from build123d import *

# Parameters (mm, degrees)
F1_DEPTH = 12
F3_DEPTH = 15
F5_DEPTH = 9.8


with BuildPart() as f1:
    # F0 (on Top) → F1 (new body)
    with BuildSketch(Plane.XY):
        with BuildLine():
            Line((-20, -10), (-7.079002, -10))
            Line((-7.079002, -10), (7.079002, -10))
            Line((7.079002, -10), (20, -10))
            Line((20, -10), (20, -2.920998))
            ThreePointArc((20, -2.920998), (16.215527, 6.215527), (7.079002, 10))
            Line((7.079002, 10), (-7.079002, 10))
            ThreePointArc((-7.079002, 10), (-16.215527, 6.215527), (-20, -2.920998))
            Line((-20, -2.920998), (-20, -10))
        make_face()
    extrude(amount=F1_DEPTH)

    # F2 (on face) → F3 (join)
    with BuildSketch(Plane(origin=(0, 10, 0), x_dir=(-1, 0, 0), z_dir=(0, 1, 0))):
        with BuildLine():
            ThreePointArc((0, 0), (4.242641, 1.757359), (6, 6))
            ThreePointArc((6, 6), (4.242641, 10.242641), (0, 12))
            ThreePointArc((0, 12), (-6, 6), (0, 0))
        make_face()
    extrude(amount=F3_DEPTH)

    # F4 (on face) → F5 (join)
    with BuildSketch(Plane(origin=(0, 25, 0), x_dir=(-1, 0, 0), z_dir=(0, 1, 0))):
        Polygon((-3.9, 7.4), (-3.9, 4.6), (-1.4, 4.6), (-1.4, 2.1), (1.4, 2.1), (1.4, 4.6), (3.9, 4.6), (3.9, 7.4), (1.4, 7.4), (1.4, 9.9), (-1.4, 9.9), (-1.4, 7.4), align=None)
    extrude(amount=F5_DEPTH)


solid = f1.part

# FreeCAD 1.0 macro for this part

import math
import FreeCAD as App
import Part
import Sketcher
from FreeCAD import Vector
Q = App.Units.Quantity

doc = App.newDocument("Part")
body = doc.addObject("PartDesign::Body", "Body")

# Sketch on XY plane
sketch1 = body.newObject("Sketcher::SketchObject", "Sketch")
sketch1.AttachmentSupport = (doc.getObject("XY_Plane"), [""])
sketch1.MapMode = "FlatFace"
sketch1.addGeometry(Part.LineSegment(Vector(-20, -10, 0), Vector(20, -10, 0)), False)
sketch1.addGeometry(Part.LineSegment(Vector(20, -10, 0), Vector(20, -3, 0)), False)
sketch1.addGeometry(Part.ArcOfCircle(Part.Circle(Vector(7, -3, 0), Vector(0, 0, 1), 13), math.radians(0), math.radians(90)), False)
sketch1.addGeometry(Part.LineSegment(Vector(7, 10, 0), Vector(-7, 10, 0)), False)
sketch1.addGeometry(Part.ArcOfCircle(Part.Circle(Vector(-7, -3, 0), Vector(0, 0, 1), 13), math.radians(90), math.radians(180)), False)
sketch1.addGeometry(Part.LineSegment(Vector(-20, -3, 0), Vector(-20, -10, 0)), False)
sketch1.addConstraint(Sketcher.Constraint("Coincident", 0, 2, 1, 1))
sketch1.addConstraint(Sketcher.Constraint("Tangent", 1, 2, 2, 1))
sketch1.addConstraint(Sketcher.Constraint("Tangent", 2, 2, 3, 1))
sketch1.addConstraint(Sketcher.Constraint("Tangent", 3, 2, 4, 1))
sketch1.addConstraint(Sketcher.Constraint("Tangent", 4, 2, 5, 1))
sketch1.addConstraint(Sketcher.Constraint("Coincident", 5, 2, 0, 1))
sketch1.addConstraint(Sketcher.Constraint("Horizontal", 0))
sketch1.addConstraint(Sketcher.Constraint("Vertical", 1))
sketch1.addConstraint(Sketcher.Constraint("Horizontal", 3))
sketch1.addConstraint(Sketcher.Constraint("Vertical", 5))
sketch1.addConstraint(Sketcher.Constraint("Equal", 2, 4))
sketch1.addConstraint(Sketcher.Constraint("DistanceX", 0, 1, 0, 2, Q("40 mm")))
sketch1.addConstraint(Sketcher.Constraint("DistanceX", -1, 1, 0, 2, Q("20 mm")))
sketch1.addConstraint(Sketcher.Constraint("DistanceY", 0, 2, -1, 1, Q("10 mm")))
sketch1.addConstraint(Sketcher.Constraint("DistanceY", -1, 1, 2, 2, Q("10 mm")))
sketch1.addConstraint(Sketcher.Constraint("Radius", 2, Q("12.920999 mm")))
pad1 = body.newObject("PartDesign::Pad", "Pad")
pad1.Profile = sketch1
pad1.Length = 12

# Sketch on XZ plane
sketch2 = body.newObject("Sketcher::SketchObject", "Sketch001")
sketch2.AttachmentSupport = (doc.getObject("XZ_Plane"), [""])
sketch2.MapMode = "FlatFace"
sketch2.AttachmentOffset = App.Placement(Vector(0, 0, -10), App.Rotation())
sketch2.addGeometry(Part.ArcOfCircle(Part.Circle(Vector(0, 6, 0), Vector(0, 0, 1), 6), math.radians(180), math.radians(270)), False)
sketch2.addGeometry(Part.ArcOfCircle(Part.Circle(Vector(0, 6, 0), Vector(0, 0, 1), 6), math.radians(90), math.radians(180)), False)
sketch2.addGeometry(Part.ArcOfCircle(Part.Circle(Vector(0, 6, 0), Vector(0, 0, 1), 6), math.radians(-90), math.radians(90)), False)
sketch2.addConstraint(Sketcher.Constraint("Tangent", 0, 1, 1, 2))
sketch2.addConstraint(Sketcher.Constraint("Tangent", 1, 1, 2, 2))
sketch2.addConstraint(Sketcher.Constraint("Tangent", 2, 1, 0, 2))
sketch2.addConstraint(Sketcher.Constraint("Coincident", 2, 1, -1, 1))
sketch2.addConstraint(Sketcher.Constraint("PointOnObject", 0, 3, -2))
sketch2.addConstraint(Sketcher.Constraint("PointOnObject", 1, 1, -2))
sketch2.addConstraint(Sketcher.Constraint("Horizontal", 2, 3, 0, 1))
sketch2.addConstraint(Sketcher.Constraint("Radius", 0, Q("5.999999 mm")))
pad2 = body.newObject("PartDesign::Pad", "Pad001")
pad2.Profile = sketch2
pad2.Length = 15
pad2.Reversed = True

# Sketch on XZ plane
sketch3 = body.newObject("Sketcher::SketchObject", "Sketch002")
sketch3.AttachmentSupport = (doc.getObject("XZ_Plane"), [""])
sketch3.MapMode = "FlatFace"
sketch3.AttachmentOffset = App.Placement(Vector(0, 0, -25), App.Rotation())
sketch3.addGeometry(Part.LineSegment(Vector(3.9, 7.4, 0), Vector(3.9, 4.6, 0)), False)
sketch3.addGeometry(Part.LineSegment(Vector(3.9, 4.6, 0), Vector(1.4, 4.6, 0)), False)
sketch3.addGeometry(Part.LineSegment(Vector(1.4, 4.6, 0), Vector(1.4, 2.1, 0)), False)
sketch3.addGeometry(Part.LineSegment(Vector(1.4, 2.1, 0), Vector(-1.4, 2.1, 0)), False)
sketch3.addGeometry(Part.LineSegment(Vector(-1.4, 2.1, 0), Vector(-1.4, 4.6, 0)), False)
sketch3.addGeometry(Part.LineSegment(Vector(-1.4, 4.6, 0), Vector(-3.9, 4.6, 0)), False)
sketch3.addGeometry(Part.LineSegment(Vector(-3.9, 4.6, 0), Vector(-3.9, 7.4, 0)), False)
sketch3.addGeometry(Part.LineSegment(Vector(-3.9, 7.4, 0), Vector(-1.4, 7.4, 0)), False)
sketch3.addGeometry(Part.LineSegment(Vector(-1.4, 7.4, 0), Vector(-1.4, 9.9, 0)), False)
sketch3.addGeometry(Part.LineSegment(Vector(-1.4, 9.9, 0), Vector(1.4, 9.9, 0)), False)
sketch3.addGeometry(Part.LineSegment(Vector(1.4, 9.9, 0), Vector(1.4, 7.4, 0)), False)
sketch3.addGeometry(Part.LineSegment(Vector(1.4, 7.4, 0), Vector(3.9, 7.4, 0)), False)
sketch3.addConstraint(Sketcher.Constraint("Coincident", 0, 2, 1, 1))
sketch3.addConstraint(Sketcher.Constraint("Coincident", 1, 2, 2, 1))
sketch3.addConstraint(Sketcher.Constraint("Coincident", 2, 2, 3, 1))
sketch3.addConstraint(Sketcher.Constraint("Coincident", 3, 2, 4, 1))
sketch3.addConstraint(Sketcher.Constraint("Coincident", 4, 2, 5, 1))
sketch3.addConstraint(Sketcher.Constraint("Coincident", 5, 2, 6, 1))
sketch3.addConstraint(Sketcher.Constraint("Coincident", 6, 2, 7, 1))
sketch3.addConstraint(Sketcher.Constraint("Coincident", 7, 2, 8, 1))
sketch3.addConstraint(Sketcher.Constraint("Coincident", 8, 2, 9, 1))
sketch3.addConstraint(Sketcher.Constraint("Coincident", 9, 2, 10, 1))
sketch3.addConstraint(Sketcher.Constraint("Coincident", 10, 2, 11, 1))
sketch3.addConstraint(Sketcher.Constraint("Coincident", 11, 2, 0, 1))
sketch3.addConstraint(Sketcher.Constraint("Vertical", 0))
sketch3.addConstraint(Sketcher.Constraint("Horizontal", 1))
sketch3.addConstraint(Sketcher.Constraint("Vertical", 2))
sketch3.addConstraint(Sketcher.Constraint("Horizontal", 3))
sketch3.addConstraint(Sketcher.Constraint("Vertical", 4))
sketch3.addConstraint(Sketcher.Constraint("Horizontal", 5))
sketch3.addConstraint(Sketcher.Constraint("Vertical", 6))
sketch3.addConstraint(Sketcher.Constraint("Horizontal", 7))
sketch3.addConstraint(Sketcher.Constraint("Vertical", 8))
sketch3.addConstraint(Sketcher.Constraint("Horizontal", 9))
sketch3.addConstraint(Sketcher.Constraint("Vertical", 10))
sketch3.addConstraint(Sketcher.Constraint("Horizontal", 11))
sketch3.addConstraint(Sketcher.Constraint("Symmetric", 1, 2, 4, 2, -2))
sketch3.addConstraint(Sketcher.Constraint("Symmetric", 7, 2, 10, 2, -2))
sketch3.addConstraint(Sketcher.Constraint("Vertical", 4, 2, 7, 2))
sketch3.addConstraint(Sketcher.Constraint("Equal", 1, 5))
sketch3.addConstraint(Sketcher.Constraint("Equal", 9, 0))
sketch3.addConstraint(Sketcher.Constraint("Equal", 11, 2))
sketch3.addConstraint(Sketcher.Constraint("Equal", 4, 8))
sketch3.addConstraint(Sketcher.Constraint("DistanceX", 1, 2, 1, 1, Q("2.5 mm")))
sketch3.addConstraint(Sketcher.Constraint("DistanceX", 3, 2, 3, 1, Q("2.8 mm")))
sketch3.addConstraint(Sketcher.Constraint("DistanceY", -1, 1, 0, 2, Q("4.6 mm")))
pad3 = body.newObject("PartDesign::Pad", "Pad002")
pad3.Profile = sketch3
pad3.Length = 9.8
pad3.Reversed = True

doc.recompute()
